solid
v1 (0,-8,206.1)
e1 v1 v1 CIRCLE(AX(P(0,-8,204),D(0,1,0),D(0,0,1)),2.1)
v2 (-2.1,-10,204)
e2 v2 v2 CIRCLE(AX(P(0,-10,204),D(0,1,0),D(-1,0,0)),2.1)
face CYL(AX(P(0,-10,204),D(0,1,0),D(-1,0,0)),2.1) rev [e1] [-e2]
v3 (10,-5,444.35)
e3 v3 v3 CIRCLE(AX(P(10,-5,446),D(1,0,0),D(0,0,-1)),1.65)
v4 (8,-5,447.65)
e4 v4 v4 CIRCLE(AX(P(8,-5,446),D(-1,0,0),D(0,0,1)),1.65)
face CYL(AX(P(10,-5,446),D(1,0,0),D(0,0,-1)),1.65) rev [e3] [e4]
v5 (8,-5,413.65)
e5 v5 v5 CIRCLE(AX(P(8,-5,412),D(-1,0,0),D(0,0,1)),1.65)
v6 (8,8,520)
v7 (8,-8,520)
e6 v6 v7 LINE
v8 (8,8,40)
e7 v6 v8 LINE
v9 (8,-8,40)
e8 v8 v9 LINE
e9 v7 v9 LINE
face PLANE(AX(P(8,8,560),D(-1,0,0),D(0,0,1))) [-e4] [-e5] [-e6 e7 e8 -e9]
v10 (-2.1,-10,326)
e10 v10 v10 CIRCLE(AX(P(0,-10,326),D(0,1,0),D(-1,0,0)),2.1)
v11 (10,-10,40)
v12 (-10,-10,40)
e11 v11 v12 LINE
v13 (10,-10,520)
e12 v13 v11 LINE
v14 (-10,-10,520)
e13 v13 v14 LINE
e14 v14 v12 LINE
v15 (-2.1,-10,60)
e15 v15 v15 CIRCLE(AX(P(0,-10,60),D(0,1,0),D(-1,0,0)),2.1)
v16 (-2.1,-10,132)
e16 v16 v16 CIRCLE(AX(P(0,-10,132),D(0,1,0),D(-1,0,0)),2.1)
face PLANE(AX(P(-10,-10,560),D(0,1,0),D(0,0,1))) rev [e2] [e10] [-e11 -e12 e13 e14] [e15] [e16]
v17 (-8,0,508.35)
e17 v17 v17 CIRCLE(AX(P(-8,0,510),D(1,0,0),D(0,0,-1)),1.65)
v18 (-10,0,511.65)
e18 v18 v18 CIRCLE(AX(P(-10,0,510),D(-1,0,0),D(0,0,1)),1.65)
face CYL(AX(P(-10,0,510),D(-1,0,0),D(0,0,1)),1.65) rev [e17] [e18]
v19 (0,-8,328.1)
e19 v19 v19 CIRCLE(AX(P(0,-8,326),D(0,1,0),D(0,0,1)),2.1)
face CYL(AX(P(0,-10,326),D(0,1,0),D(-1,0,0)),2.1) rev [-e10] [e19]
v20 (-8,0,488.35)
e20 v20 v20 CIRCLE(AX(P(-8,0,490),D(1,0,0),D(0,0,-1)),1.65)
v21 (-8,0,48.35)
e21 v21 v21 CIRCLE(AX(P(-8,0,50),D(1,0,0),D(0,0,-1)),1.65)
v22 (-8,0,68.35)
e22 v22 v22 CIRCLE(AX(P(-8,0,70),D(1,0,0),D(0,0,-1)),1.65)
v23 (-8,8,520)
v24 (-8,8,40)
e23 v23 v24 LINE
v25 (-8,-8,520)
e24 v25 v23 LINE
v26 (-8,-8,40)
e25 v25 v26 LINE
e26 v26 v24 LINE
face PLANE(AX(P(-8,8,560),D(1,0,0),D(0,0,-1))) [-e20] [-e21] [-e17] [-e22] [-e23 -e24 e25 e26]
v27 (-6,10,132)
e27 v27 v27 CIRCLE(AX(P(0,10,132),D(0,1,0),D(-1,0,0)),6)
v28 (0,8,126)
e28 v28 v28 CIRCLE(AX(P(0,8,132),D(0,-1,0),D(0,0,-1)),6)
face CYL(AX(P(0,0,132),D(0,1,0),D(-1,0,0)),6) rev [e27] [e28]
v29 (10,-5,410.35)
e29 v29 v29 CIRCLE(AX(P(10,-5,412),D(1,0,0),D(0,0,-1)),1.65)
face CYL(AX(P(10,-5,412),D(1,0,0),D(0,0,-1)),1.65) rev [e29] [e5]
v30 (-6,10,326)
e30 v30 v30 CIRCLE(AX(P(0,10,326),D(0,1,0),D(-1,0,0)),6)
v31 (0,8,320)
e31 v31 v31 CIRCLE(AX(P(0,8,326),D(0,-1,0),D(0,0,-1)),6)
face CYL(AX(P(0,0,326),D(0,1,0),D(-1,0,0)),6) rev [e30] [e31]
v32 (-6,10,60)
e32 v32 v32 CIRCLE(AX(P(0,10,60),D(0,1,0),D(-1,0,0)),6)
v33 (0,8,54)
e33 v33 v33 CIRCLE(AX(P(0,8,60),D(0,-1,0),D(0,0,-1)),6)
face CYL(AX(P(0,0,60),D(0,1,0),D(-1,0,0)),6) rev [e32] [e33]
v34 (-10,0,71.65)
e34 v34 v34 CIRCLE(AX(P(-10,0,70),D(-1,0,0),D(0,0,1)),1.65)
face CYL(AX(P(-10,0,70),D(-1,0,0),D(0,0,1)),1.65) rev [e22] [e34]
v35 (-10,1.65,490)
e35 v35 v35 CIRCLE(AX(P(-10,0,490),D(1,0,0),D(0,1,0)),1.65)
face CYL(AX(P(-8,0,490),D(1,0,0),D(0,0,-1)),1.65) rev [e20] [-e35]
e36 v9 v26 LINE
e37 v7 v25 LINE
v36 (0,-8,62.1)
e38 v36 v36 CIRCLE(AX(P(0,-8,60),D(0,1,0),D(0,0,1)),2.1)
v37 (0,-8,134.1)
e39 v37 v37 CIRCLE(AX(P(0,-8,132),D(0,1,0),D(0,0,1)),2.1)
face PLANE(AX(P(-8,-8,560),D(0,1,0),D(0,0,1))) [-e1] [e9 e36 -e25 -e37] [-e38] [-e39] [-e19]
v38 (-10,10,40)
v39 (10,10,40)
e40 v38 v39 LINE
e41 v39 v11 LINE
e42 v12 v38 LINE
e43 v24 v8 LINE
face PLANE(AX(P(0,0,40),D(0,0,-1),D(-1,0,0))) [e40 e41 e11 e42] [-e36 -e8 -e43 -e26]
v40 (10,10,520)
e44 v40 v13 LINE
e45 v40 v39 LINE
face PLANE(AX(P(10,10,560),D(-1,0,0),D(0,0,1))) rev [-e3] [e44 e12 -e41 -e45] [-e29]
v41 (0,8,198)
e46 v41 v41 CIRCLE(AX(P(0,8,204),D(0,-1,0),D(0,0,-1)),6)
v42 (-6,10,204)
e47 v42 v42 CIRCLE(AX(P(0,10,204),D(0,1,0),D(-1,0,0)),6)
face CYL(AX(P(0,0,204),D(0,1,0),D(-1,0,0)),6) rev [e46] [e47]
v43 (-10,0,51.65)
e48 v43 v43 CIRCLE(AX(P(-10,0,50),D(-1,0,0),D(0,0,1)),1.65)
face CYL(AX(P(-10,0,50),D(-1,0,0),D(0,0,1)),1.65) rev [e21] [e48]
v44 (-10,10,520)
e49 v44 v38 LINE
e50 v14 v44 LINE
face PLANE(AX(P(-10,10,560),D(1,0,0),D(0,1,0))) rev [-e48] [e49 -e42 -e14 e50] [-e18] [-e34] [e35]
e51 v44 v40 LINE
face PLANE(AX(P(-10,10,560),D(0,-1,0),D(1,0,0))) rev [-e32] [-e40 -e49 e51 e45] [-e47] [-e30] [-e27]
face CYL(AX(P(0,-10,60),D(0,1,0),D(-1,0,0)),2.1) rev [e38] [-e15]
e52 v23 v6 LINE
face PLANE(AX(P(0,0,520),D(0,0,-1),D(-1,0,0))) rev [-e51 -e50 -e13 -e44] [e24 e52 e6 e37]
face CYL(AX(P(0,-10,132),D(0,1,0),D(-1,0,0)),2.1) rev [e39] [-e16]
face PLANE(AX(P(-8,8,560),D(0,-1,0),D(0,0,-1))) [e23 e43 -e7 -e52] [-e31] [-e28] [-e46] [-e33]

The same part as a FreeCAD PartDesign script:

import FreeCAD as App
import Part
import Sketcher
from FreeCAD import Vector

doc = App.newDocument("Part")
body = doc.addObject("PartDesign::Body", "Body")

# Sketch on XY plane
sketch1 = body.newObject("Sketcher::SketchObject", "Sketch")
sketch1.AttachmentSupport = (doc.getObject("XY_Plane"), [""])
sketch1.MapMode = "FlatFace"
sketch1.addGeometry(Part.LineSegment(Vector(-10, 10, 0), Vector(-10, -10, 0)), False)
sketch1.addGeometry(Part.LineSegment(Vector(-10, -10, 0), Vector(10, -10, 0)), False)
sketch1.addGeometry(Part.LineSegment(Vector(10, -10, 0), Vector(10, 10, 0)), False)
sketch1.addGeometry(Part.LineSegment(Vector(10, 10, 0), Vector(-10, 10, 0)), False)
sketch1.addGeometry(Part.LineSegment(Vector(8, -8, 0), Vector(-8, -8, 0)), False)
sketch1.addGeometry(Part.LineSegment(Vector(-8, -8, 0), Vector(-8, 8, 0)), False)
sketch1.addGeometry(Part.LineSegment(Vector(-8, 8, 0), Vector(8, 8, 0)), False)
sketch1.addGeometry(Part.LineSegment(Vector(8, 8, 0), Vector(8, -8, 0)), False)
sketch1.addConstraint(Sketcher.Constraint("Coincident", 0, 2, 1, 1))
sketch1.addConstraint(Sketcher.Constraint("Coincident", 1, 2, 2, 1))
sketch1.addConstraint(Sketcher.Constraint("Coincident", 2, 2, 3, 1))
sketch1.addConstraint(Sketcher.Constraint("Coincident", 3, 2, 0, 1))
sketch1.addConstraint(Sketcher.Constraint("Coincident", 4, 2, 5, 1))
sketch1.addConstraint(Sketcher.Constraint("Coincident", 5, 2, 6, 1))
sketch1.addConstraint(Sketcher.Constraint("Coincident", 6, 2, 7, 1))
sketch1.addConstraint(Sketcher.Constraint("Coincident", 7, 2, 4, 1))
sketch1.addConstraint(Sketcher.Constraint("Vertical", 0))
sketch1.addConstraint(Sketcher.Constraint("Horizontal", 1))
sketch1.addConstraint(Sketcher.Constraint("Vertical", 2))
sketch1.addConstraint(Sketcher.Constraint("Horizontal", 3))
sketch1.addConstraint(Sketcher.Constraint("Horizontal", 4))
sketch1.addConstraint(Sketcher.Constraint("Vertical", 5))
sketch1.addConstraint(Sketcher.Constraint("Horizontal", 6))
sketch1.addConstraint(Sketcher.Constraint("Vertical", 7))
sketch1.addConstraint(Sketcher.Constraint("Symmetric", 0, 2, 2, 2, -1, 1))
sketch1.addConstraint(Sketcher.Constraint("Symmetric", 4, 2, 6, 2, -1, 1))
sketch1.addConstraint(Sketcher.Constraint("Equal", 3, 0))
sketch1.addConstraint(Sketcher.Constraint("Equal", 6, 5))
sketch1.addConstraint(Sketcher.Constraint("DistanceX", 1, 1, 1, 2, 20.0))
sketch1.addConstraint(Sketcher.Constraint("DistanceX", 4, 2, 4, 1, 16.0))
pad1 = body.newObject("PartDesign::Pad", "Pad")
pad1.Profile = sketch1
pad1.Length = 560

# Sketch on YZ plane
sketch2 = body.newObject("Sketcher::SketchObject", "Sketch001")
sketch2.AttachmentSupport = (doc.getObject("YZ_Plane"), [""])
sketch2.MapMode = "FlatFace"
sketch2.AttachmentOffset = App.Placement(Vector(0, 0, 10), App.Rotation())
sketch2.addGeometry(Part.Circle(Vector(0, 530, 0), Vector(0, 0, 1), 2.2), False)
sketch2.addGeometry(Part.Circle(Vector(0, 30, 0), Vector(0, 0, 1), 2.2), False)
sketch2.addConstraint(Sketcher.Constraint("Equal", 0, 1))
sketch2.addConstraint(Sketcher.Constraint("PointOnObject", 0, 3, -2))
sketch2.addConstraint(Sketcher.Constraint("PointOnObject", 1, 3, -2))
sketch2.addConstraint(Sketcher.Constraint("Diameter", 0, 4.4))
sketch2.addConstraint(Sketcher.Constraint("DistanceY", -1, 1, 0, 3, 530.0))
sketch2.addConstraint(Sketcher.Constraint("DistanceY", -1, 1, 1, 3, 30.0))
pocket1 = body.newObject("PartDesign::Pocket", "Pocket")
pocket1.Profile = sketch2
pocket1.Length = 560

# Sketch on XZ plane
sketch3 = body.newObject("Sketcher::SketchObject", "Sketch002")
sketch3.AttachmentSupport = (doc.getObject("XZ_Plane"), [""])
sketch3.MapMode = "FlatFace"
sketch3.AttachmentOffset = App.Placement(Vector(0, 0, -10), App.Rotation())
sketch3.addGeometry(Part.Circle(Vector(0, 550, 0), Vector(0, 0, 1), 2.2), False)
sketch3.addGeometry(Part.Circle(Vector(0, 10, 0), Vector(0, 0, 1), 2.2), False)
sketch3.addConstraint(Sketcher.Constraint("Equal", 0, 1))
sketch3.addConstraint(Sketcher.Constraint("PointOnObject", 0, 3, -2))
sketch3.addConstraint(Sketcher.Constraint("PointOnObject", 1, 3, -2))
sketch3.addConstraint(Sketcher.Constraint("Diameter", 0, 4.4))
sketch3.addConstraint(Sketcher.Constraint("DistanceY", -1, 1, 0, 3, 550.0))
sketch3.addConstraint(Sketcher.Constraint("DistanceY", -1, 1, 1, 3, 10.0))
pocket2 = body.newObject("PartDesign::Pocket", "Pocket001")
pocket2.Profile = sketch3
pocket2.Length = 560
pocket2.Reversed = True

# Sketch on XY plane
sketch4 = body.newObject("Sketcher::SketchObject", "Sketch003")
sketch4.AttachmentSupport = (doc.getObject("XY_Plane"), [""])
sketch4.MapMode = "FlatFace"
sketch4.addGeometry(Part.LineSegment(Vector(21, 21, 0), Vector(21, -21, 0)), False)
sketch4.addGeometry(Part.LineSegment(Vector(21, -21, 0), Vector(-21, -21, 0)), False)
sketch4.addGeometry(Part.LineSegment(Vector(-21, -21, 0), Vector(-21, 21, 0)), False)
sketch4.addGeometry(Part.LineSegment(Vector(-21, 21, 0), Vector(21, 21, 0)), False)
sketch4.addConstraint(Sketcher.Constraint("Coincident", 0, 2, 1, 1))
sketch4.addConstraint(Sketcher.Constraint("Coincident", 1, 2, 2, 1))
sketch4.addConstraint(Sketcher.Constraint("Coincident", 2, 2, 3, 1))
sketch4.addConstraint(Sketcher.Constraint("Coincident", 3, 2, 0, 1))
sketch4.addConstraint(Sketcher.Constraint("Vertical", 0))
sketch4.addConstraint(Sketcher.Constraint("Horizontal", 1))
sketch4.addConstraint(Sketcher.Constraint("Vertical", 2))
sketch4.addConstraint(Sketcher.Constraint("Horizontal", 3))
sketch4.addConstraint(Sketcher.Constraint("Symmetric", 0, 2, 2, 2, -1, 1))
sketch4.addConstraint(Sketcher.Constraint("DistanceY", 0, 2, 0, 1, 41.635392))
sketch4.addConstraint(Sketcher.Constraint("DistanceX", 1, 2, 1, 1, 41.109336))
pocket3 = body.newObject("PartDesign::Pocket", "Pocket002")
pocket3.Profile = sketch4
pocket3.Length = 40
pocket3.Reversed = True

# Sketch on XY plane
sketch5 = body.newObject("Sketcher::SketchObject", "Sketch004")
sketch5.AttachmentSupport = (doc.getObject("XY_Plane"), [""])
sketch5.MapMode = "FlatFace"
sketch5.AttachmentOffset = App.Placement(Vector(0, 0, 560), App.Rotation())
sketch5.addGeometry(Part.LineSegment(Vector(-27, 17, 0), Vector(-27, -17, 0)), False)
sketch5.addGeometry(Part.LineSegment(Vector(-27, -17, 0), Vector(27, -17, 0)), False)
sketch5.addGeometry(Part.LineSegment(Vector(27, -17, 0), Vector(27, 17, 0)), False)
sketch5.addGeometry(Part.LineSegment(Vector(27, 17, 0), Vector(-27, 17, 0)), False)
sketch5.addConstraint(Sketcher.Constraint("Coincident", 0, 2, 1, 1))
sketch5.addConstraint(Sketcher.Constraint("Coincident", 1, 2, 2, 1))
sketch5.addConstraint(Sketcher.Constraint("Coincident", 2, 2, 3, 1))
sketch5.addConstraint(Sketcher.Constraint("Coincident", 3, 2, 0, 1))
sketch5.addConstraint(Sketcher.Constraint("Vertical", 0))
sketch5.addConstraint(Sketcher.Constraint("Horizontal", 1))
sketch5.addConstraint(Sketcher.Constraint("Vertical", 2))
sketch5.addConstraint(Sketcher.Constraint("Horizontal", 3))
sketch5.addConstraint(Sketcher.Constraint("Symmetric", 0, 2, 2, 2, -1, 1))
sketch5.addConstraint(Sketcher.Constraint("DistanceX", 1, 1, 1, 2, 53.430317))
sketch5.addConstraint(Sketcher.Constraint("DistanceY", 0, 2, 0, 1, 33.679556))
pocket4 = body.newObject("PartDesign::Pocket", "Pocket003")
pocket4.Profile = sketch5
pocket4.Length = 40

# Sketch on YZ plane
sketch6 = body.newObject("Sketcher::SketchObject", "Sketch005")
sketch6.AttachmentSupport = (doc.getObject("YZ_Plane"), [""])
sketch6.MapMode = "FlatFace"
sketch6.AttachmentOffset = App.Placement(Vector(0, 0, -10), App.Rotation())
sketch6.addGeometry(Part.Circle(Vector(0, 510, 0), Vector(0, 0, 1), 1), False)
sketch6.addGeometry(Part.Circle(Vector(0, 490, 0), Vector(0, 0, 1), 1), False)
sketch6.addConstraint(Sketcher.Constraint("Equal", 0, 1))
sketch6.addConstraint(Sketcher.Constraint("PointOnObject", 0, 3, -2))
sketch6.addConstraint(Sketcher.Constraint("PointOnObject", 1, 3, -2))
sketch6.addConstraint(Sketcher.Constraint("Diameter", 0, 2.0))
sketch6.addConstraint(Sketcher.Constraint("DistanceY", -1, 1, 0, 3, 510.0))
sketch6.addConstraint(Sketcher.Constraint("DistanceY", -1, 1, 1, 3, 490.0))
pocket5 = body.newObject("PartDesign::Pocket", "Pocket004")
pocket5.Profile = sketch6
pocket5.Length = 10
pocket5.Reversed = True

# Sketch on YZ plane
sketch7 = body.newObject("Sketcher::SketchObject", "Sketch006")
sketch7.AttachmentSupport = (doc.getObject("YZ_Plane"), [""])
sketch7.MapMode = "FlatFace"
sketch7.AttachmentOffset = App.Placement(Vector(0, 0, -10), App.Rotation())
sketch7.addGeometry(Part.Circle(Vector(0, 50, 0), Vector(0, 0, 1), 1), False)
sketch7.addGeometry(Part.Circle(Vector(0, 70, 0), Vector(0, 0, 1), 1), False)
sketch7.addConstraint(Sketcher.Constraint("Equal", 0, 1))
sketch7.addConstraint(Sketcher.Constraint("PointOnObject", 0, 3, -2))
sketch7.addConstraint(Sketcher.Constraint("PointOnObject", 1, 3, -2))
sketch7.addConstraint(Sketcher.Constraint("Diameter", 0, 2.0))
sketch7.addConstraint(Sketcher.Constraint("DistanceY", -1, 1, 0, 3, 50.0))
sketch7.addConstraint(Sketcher.Constraint("DistanceY", -1, 1, 1, 3, 70.0))
pocket6 = body.newObject("PartDesign::Pocket", "Pocket005")
pocket6.Profile = sketch7
pocket6.Length = 10
pocket6.Reversed = True

# Sketch on XZ plane
sketch8 = body.newObject("Sketcher::SketchObject", "Sketch007")
sketch8.AttachmentSupport = (doc.getObject("XZ_Plane"), [""])
sketch8.MapMode = "FlatFace"
sketch8.AttachmentOffset = App.Placement(Vector(0, 0, -10), App.Rotation())
sketch8.addGeometry(Part.Circle(Vector(0, 60, 0), Vector(0, 0, 1), 2.1), False)
sketch8.addGeometry(Part.Circle(Vector(0, 132, 0), Vector(0, 0, 1), 2.1), False)
sketch8.addGeometry(Part.Circle(Vector(0, 204, 0), Vector(0, 0, 1), 2.1), False)
sketch8.addConstraint(Sketcher.Constraint("Equal", 0, 1))
sketch8.addConstraint(Sketcher.Constraint("Equal", 1, 2))
sketch8.addConstraint(Sketcher.Constraint("PointOnObject", 0, 3, -2))
sketch8.addConstraint(Sketcher.Constraint("PointOnObject", 1, 3, -2))
sketch8.addConstraint(Sketcher.Constraint("PointOnObject", 2, 3, -2))
sketch8.addConstraint(Sketcher.Constraint("Diameter", 0, 4.2))
sketch8.addConstraint(Sketcher.Constraint("DistanceY", -1, 1, 0, 3, 60.0))
sketch8.addConstraint(Sketcher.Constraint("DistanceY", -1, 1, 1, 3, 132.0))
sketch8.addConstraint(Sketcher.Constraint("DistanceY", -1, 1, 2, 3, 204.0))
pocket7 = body.newObject("PartDesign::Pocket", "Pocket006")
pocket7.Profile = sketch8
pocket7.Type = "ThroughAll"
pocket7.Reversed = True

# Sketch on XZ plane
sketch9 = body.newObject("Sketcher::SketchObject", "Sketch008")
sketch9.AttachmentSupport = (doc.getObject("XZ_Plane"), [""])
sketch9.MapMode = "FlatFace"
sketch9.AttachmentOffset = App.Placement(Vector(0, 0, -10), App.Rotation())
sketch9.addGeometry(Part.Circle(Vector(0, 60, 0), Vector(0, 0, 1), 6), False)
sketch9.addGeometry(Part.Circle(Vector(0, 132, 0), Vector(0, 0, 1), 6), False)
sketch9.addGeometry(Part.Circle(Vector(0, 204, 0), Vector(0, 0, 1), 6), False)
sketch9.addConstraint(Sketcher.Constraint("Equal", 0, 1))
sketch9.addConstraint(Sketcher.Constraint("Equal", 1, 2))
sketch9.addConstraint(Sketcher.Constraint("PointOnObject", 0, 3, -2))
sketch9.addConstraint(Sketcher.Constraint("PointOnObject", 1, 3, -2))
sketch9.addConstraint(Sketcher.Constraint("PointOnObject", 2, 3, -2))
sketch9.addConstraint(Sketcher.Constraint("Diameter", 0, 12.0))
sketch9.addConstraint(Sketcher.Constraint("DistanceY", -1, 1, 0, 3, 60.0))
sketch9.addConstraint(Sketcher.Constraint("DistanceY", -1, 1, 1, 3, 132.0))
sketch9.addConstraint(Sketcher.Constraint("DistanceY", -1, 1, 2, 3, 204.0))
pocket8 = body.newObject("PartDesign::Pocket", "Pocket007")
pocket8.Profile = sketch9
pocket8.Length = 10
pocket8.Reversed = True

# Sketch on XZ plane
sketch10 = body.newObject("Sketcher::SketchObject", "Sketch009")
sketch10.AttachmentSupport = (doc.getObject("XZ_Plane"), [""])
sketch10.MapMode = "FlatFace"
sketch10.AttachmentOffset = App.Placement(Vector(0, 0, -10), App.Rotation())
sketch10.addGeometry(Part.Circle(Vector(0, 326, 0), Vector(0, 0, 1), 2.1), False)
sketch10.addConstraint(Sketcher.Constraint("PointOnObject", 0, 3, -2))
sketch10.addConstraint(Sketcher.Constraint("Diameter", 0, 4.2))
sketch10.addConstraint(Sketcher.Constraint("DistanceY", -1, 1, 0, 3, 326.0))
pocket9 = body.newObject("PartDesign::Pocket", "Pocket008")
pocket9.Profile = sketch10
pocket9.Type = "ThroughAll"
pocket9.Reversed = True

# Sketch on XZ plane
sketch11 = body.newObject("Sketcher::SketchObject", "Sketch010")
sketch11.AttachmentSupport = (doc.getObject("XZ_Plane"), [""])
sketch11.MapMode = "FlatFace"
sketch11.AttachmentOffset = App.Placement(Vector(0, 0, -10), App.Rotation())
sketch11.addGeometry(Part.Circle(Vector(0, 326, 0), Vector(0, 0, 1), 6), False)
sketch11.addConstraint(Sketcher.Constraint("PointOnObject", 0, 3, -2))
sketch11.addConstraint(Sketcher.Constraint("Diameter", 0, 12.0))
sketch11.addConstraint(Sketcher.Constraint("DistanceY", -1, 1, 0, 3, 326.0))
pocket10 = body.newObject("PartDesign::Pocket", "Pocket009")
pocket10.Profile = sketch11
pocket10.Length = 10
pocket10.Reversed = True

# Sketch on YZ plane
sketch12 = body.newObject("Sketcher::SketchObject", "Sketch011")
sketch12.AttachmentSupport = (doc.getObject("YZ_Plane"), [""])
sketch12.MapMode = "FlatFace"
sketch12.AttachmentOffset = App.Placement(Vector(0, 0, -10), App.Rotation())
sketch12.addGeometry(Part.Circle(Vector(0, 70, 0), Vector(0, 0, 1), 1.6), False)
sketch12.addGeometry(Part.Circle(Vector(0, 50, 0), Vector(0, 0, 1), 1.6), False)
sketch12.addConstraint(Sketcher.Constraint("Equal", 0, 1))
sketch12.addConstraint(Sketcher.Constraint("PointOnObject", 0, 3, -2))
sketch12.addConstraint(Sketcher.Constraint("PointOnObject", 1, 3, -2))
sketch12.addConstraint(Sketcher.Constraint("Diameter", 0, 3.3))
sketch12.addConstraint(Sketcher.Constraint("DistanceY", -1, 1, 0, 3, 70.0))
sketch12.addConstraint(Sketcher.Constraint("DistanceY", -1, 1, 1, 3, 50.0))
doc.recompute()
hole = body.newObject("PartDesign::Hole", "Hole")
hole.Profile = sketch12
hole.ThreadType = "None"
hole.Diameter = 3.3
hole.DepthType = "Dimension"
hole.Depth = 11.5
hole.DrillPoint = "Angled"
hole.DrillPointAngle = 118
hole.Reversed = True

# Sketch on YZ plane
sketch13 = body.newObject("Sketcher::SketchObject", "Sketch012")
sketch13.AttachmentSupport = (doc.getObject("YZ_Plane"), [""])
sketch13.MapMode = "FlatFace"
sketch13.AttachmentOffset = App.Placement(Vector(0, 0, -8), App.Rotation())
sketch13.addGeometry(Part.Circle(Vector(0, 490, 0), Vector(0, 0, 1), 1.6), False)
sketch13.addConstraint(Sketcher.Constraint("PointOnObject", 0, 3, -2))
sketch13.addConstraint(Sketcher.Constraint("Diameter", 0, 3.3))
sketch13.addConstraint(Sketcher.Constraint("DistanceY", -1, 1, 0, 3, 490.0))
doc.recompute()
hole2 = body.newObject("PartDesign::Hole", "Hole001")
hole2.Profile = sketch13
hole2.ThreadType = "None"
hole2.Diameter = 3.3
hole2.DepthType = "Dimension"
hole2.Depth = 11.5
hole2.DrillPoint = "Angled"
hole2.DrillPointAngle = 118

# Sketch on YZ plane
sketch14 = body.newObject("Sketcher::SketchObject", "Sketch013")
sketch14.AttachmentSupport = (doc.getObject("YZ_Plane"), [""])
sketch14.MapMode = "FlatFace"
sketch14.AttachmentOffset = App.Placement(Vector(0, 0, -10), App.Rotation())
sketch14.addGeometry(Part.Circle(Vector(0, 510, 0), Vector(0, 0, 1), 1.6), False)
sketch14.addConstraint(Sketcher.Constraint("PointOnObject", 0, 3, -2))
sketch14.addConstraint(Sketcher.Constraint("Diameter", 0, 3.3))
sketch14.addConstraint(Sketcher.Constraint("DistanceY", -1, 1, 0, 3, 510.0))
doc.recompute()
hole3 = body.newObject("PartDesign::Hole", "Hole002")
hole3.Profile = sketch14
hole3.ThreadType = "None"
hole3.Diameter = 3.3
hole3.DepthType = "Dimension"
hole3.Depth = 11.5
hole3.DrillPoint = "Angled"
hole3.DrillPointAngle = 118
hole3.Reversed = True

# Sketch on YZ plane
sketch15 = body.newObject("Sketcher::SketchObject", "Sketch014")
sketch15.AttachmentSupport = (doc.getObject("YZ_Plane"), [""])
sketch15.MapMode = "FlatFace"
sketch15.AttachmentOffset = App.Placement(Vector(0, 0, 10), App.Rotation())
sketch15.addGeometry(Part.Circle(Vector(-5, 446, 0), Vector(0, 0, 1), 1), False)
sketch15.addGeometry(Part.Circle(Vector(-5, 412, 0), Vector(0, 0, 1), 1), False)
sketch15.addConstraint(Sketcher.Constraint("Equal", 0, 1))
sketch15.addConstraint(Sketcher.Constraint("Vertical", 0, 3, 1, 3))
sketch15.addConstraint(Sketcher.Constraint("Diameter", 0, 2.0))
sketch15.addConstraint(Sketcher.Constraint("DistanceX", 0, 3, -1, 1, 5.0))
sketch15.addConstraint(Sketcher.Constraint("DistanceY", -1, 1, 0, 3, 446.0))
sketch15.addConstraint(Sketcher.Constraint("DistanceY", -1, 1, 1, 3, 412.0))
pocket11 = body.newObject("PartDesign::Pocket", "Pocket010")
pocket11.Profile = sketch15
pocket11.Length = 10

# Sketch on YZ plane
sketch16 = body.newObject("Sketcher::SketchObject", "Sketch015")
sketch16.AttachmentSupport = (doc.getObject("YZ_Plane"), [""])
sketch16.MapMode = "FlatFace"
sketch16.AttachmentOffset = App.Placement(Vector(0, 0, 10), App.Rotation())
sketch16.addGeometry(Part.Circle(Vector(-5, 446, 0), Vector(0, 0, 1), 1.6), False)
sketch16.addGeometry(Part.Circle(Vector(-5, 412, 0), Vector(0, 0, 1), 1.6), False)
sketch16.addConstraint(Sketcher.Constraint("Equal", 0, 1))
sketch16.addConstraint(Sketcher.Constraint("Vertical", 0, 3, 1, 3))
sketch16.addConstraint(Sketcher.Constraint("Diameter", 0, 3.3))
sketch16.addConstraint(Sketcher.Constraint("DistanceX", 0, 3, -1, 1, 5.0))
sketch16.addConstraint(Sketcher.Constraint("DistanceY", -1, 1, 0, 3, 446.0))
sketch16.addConstraint(Sketcher.Constraint("DistanceY", -1, 1, 1, 3, 412.0))
doc.recompute()
hole4 = body.newObject("PartDesign::Hole", "Hole003")
hole4.Profile = sketch16
hole4.ThreadType = "None"
hole4.Diameter = 3.3
hole4.DepthType = "Dimension"
hole4.Depth = 11.5
hole4.DrillPoint = "Angled"
hole4.DrillPointAngle = 118

doc.recompute()
